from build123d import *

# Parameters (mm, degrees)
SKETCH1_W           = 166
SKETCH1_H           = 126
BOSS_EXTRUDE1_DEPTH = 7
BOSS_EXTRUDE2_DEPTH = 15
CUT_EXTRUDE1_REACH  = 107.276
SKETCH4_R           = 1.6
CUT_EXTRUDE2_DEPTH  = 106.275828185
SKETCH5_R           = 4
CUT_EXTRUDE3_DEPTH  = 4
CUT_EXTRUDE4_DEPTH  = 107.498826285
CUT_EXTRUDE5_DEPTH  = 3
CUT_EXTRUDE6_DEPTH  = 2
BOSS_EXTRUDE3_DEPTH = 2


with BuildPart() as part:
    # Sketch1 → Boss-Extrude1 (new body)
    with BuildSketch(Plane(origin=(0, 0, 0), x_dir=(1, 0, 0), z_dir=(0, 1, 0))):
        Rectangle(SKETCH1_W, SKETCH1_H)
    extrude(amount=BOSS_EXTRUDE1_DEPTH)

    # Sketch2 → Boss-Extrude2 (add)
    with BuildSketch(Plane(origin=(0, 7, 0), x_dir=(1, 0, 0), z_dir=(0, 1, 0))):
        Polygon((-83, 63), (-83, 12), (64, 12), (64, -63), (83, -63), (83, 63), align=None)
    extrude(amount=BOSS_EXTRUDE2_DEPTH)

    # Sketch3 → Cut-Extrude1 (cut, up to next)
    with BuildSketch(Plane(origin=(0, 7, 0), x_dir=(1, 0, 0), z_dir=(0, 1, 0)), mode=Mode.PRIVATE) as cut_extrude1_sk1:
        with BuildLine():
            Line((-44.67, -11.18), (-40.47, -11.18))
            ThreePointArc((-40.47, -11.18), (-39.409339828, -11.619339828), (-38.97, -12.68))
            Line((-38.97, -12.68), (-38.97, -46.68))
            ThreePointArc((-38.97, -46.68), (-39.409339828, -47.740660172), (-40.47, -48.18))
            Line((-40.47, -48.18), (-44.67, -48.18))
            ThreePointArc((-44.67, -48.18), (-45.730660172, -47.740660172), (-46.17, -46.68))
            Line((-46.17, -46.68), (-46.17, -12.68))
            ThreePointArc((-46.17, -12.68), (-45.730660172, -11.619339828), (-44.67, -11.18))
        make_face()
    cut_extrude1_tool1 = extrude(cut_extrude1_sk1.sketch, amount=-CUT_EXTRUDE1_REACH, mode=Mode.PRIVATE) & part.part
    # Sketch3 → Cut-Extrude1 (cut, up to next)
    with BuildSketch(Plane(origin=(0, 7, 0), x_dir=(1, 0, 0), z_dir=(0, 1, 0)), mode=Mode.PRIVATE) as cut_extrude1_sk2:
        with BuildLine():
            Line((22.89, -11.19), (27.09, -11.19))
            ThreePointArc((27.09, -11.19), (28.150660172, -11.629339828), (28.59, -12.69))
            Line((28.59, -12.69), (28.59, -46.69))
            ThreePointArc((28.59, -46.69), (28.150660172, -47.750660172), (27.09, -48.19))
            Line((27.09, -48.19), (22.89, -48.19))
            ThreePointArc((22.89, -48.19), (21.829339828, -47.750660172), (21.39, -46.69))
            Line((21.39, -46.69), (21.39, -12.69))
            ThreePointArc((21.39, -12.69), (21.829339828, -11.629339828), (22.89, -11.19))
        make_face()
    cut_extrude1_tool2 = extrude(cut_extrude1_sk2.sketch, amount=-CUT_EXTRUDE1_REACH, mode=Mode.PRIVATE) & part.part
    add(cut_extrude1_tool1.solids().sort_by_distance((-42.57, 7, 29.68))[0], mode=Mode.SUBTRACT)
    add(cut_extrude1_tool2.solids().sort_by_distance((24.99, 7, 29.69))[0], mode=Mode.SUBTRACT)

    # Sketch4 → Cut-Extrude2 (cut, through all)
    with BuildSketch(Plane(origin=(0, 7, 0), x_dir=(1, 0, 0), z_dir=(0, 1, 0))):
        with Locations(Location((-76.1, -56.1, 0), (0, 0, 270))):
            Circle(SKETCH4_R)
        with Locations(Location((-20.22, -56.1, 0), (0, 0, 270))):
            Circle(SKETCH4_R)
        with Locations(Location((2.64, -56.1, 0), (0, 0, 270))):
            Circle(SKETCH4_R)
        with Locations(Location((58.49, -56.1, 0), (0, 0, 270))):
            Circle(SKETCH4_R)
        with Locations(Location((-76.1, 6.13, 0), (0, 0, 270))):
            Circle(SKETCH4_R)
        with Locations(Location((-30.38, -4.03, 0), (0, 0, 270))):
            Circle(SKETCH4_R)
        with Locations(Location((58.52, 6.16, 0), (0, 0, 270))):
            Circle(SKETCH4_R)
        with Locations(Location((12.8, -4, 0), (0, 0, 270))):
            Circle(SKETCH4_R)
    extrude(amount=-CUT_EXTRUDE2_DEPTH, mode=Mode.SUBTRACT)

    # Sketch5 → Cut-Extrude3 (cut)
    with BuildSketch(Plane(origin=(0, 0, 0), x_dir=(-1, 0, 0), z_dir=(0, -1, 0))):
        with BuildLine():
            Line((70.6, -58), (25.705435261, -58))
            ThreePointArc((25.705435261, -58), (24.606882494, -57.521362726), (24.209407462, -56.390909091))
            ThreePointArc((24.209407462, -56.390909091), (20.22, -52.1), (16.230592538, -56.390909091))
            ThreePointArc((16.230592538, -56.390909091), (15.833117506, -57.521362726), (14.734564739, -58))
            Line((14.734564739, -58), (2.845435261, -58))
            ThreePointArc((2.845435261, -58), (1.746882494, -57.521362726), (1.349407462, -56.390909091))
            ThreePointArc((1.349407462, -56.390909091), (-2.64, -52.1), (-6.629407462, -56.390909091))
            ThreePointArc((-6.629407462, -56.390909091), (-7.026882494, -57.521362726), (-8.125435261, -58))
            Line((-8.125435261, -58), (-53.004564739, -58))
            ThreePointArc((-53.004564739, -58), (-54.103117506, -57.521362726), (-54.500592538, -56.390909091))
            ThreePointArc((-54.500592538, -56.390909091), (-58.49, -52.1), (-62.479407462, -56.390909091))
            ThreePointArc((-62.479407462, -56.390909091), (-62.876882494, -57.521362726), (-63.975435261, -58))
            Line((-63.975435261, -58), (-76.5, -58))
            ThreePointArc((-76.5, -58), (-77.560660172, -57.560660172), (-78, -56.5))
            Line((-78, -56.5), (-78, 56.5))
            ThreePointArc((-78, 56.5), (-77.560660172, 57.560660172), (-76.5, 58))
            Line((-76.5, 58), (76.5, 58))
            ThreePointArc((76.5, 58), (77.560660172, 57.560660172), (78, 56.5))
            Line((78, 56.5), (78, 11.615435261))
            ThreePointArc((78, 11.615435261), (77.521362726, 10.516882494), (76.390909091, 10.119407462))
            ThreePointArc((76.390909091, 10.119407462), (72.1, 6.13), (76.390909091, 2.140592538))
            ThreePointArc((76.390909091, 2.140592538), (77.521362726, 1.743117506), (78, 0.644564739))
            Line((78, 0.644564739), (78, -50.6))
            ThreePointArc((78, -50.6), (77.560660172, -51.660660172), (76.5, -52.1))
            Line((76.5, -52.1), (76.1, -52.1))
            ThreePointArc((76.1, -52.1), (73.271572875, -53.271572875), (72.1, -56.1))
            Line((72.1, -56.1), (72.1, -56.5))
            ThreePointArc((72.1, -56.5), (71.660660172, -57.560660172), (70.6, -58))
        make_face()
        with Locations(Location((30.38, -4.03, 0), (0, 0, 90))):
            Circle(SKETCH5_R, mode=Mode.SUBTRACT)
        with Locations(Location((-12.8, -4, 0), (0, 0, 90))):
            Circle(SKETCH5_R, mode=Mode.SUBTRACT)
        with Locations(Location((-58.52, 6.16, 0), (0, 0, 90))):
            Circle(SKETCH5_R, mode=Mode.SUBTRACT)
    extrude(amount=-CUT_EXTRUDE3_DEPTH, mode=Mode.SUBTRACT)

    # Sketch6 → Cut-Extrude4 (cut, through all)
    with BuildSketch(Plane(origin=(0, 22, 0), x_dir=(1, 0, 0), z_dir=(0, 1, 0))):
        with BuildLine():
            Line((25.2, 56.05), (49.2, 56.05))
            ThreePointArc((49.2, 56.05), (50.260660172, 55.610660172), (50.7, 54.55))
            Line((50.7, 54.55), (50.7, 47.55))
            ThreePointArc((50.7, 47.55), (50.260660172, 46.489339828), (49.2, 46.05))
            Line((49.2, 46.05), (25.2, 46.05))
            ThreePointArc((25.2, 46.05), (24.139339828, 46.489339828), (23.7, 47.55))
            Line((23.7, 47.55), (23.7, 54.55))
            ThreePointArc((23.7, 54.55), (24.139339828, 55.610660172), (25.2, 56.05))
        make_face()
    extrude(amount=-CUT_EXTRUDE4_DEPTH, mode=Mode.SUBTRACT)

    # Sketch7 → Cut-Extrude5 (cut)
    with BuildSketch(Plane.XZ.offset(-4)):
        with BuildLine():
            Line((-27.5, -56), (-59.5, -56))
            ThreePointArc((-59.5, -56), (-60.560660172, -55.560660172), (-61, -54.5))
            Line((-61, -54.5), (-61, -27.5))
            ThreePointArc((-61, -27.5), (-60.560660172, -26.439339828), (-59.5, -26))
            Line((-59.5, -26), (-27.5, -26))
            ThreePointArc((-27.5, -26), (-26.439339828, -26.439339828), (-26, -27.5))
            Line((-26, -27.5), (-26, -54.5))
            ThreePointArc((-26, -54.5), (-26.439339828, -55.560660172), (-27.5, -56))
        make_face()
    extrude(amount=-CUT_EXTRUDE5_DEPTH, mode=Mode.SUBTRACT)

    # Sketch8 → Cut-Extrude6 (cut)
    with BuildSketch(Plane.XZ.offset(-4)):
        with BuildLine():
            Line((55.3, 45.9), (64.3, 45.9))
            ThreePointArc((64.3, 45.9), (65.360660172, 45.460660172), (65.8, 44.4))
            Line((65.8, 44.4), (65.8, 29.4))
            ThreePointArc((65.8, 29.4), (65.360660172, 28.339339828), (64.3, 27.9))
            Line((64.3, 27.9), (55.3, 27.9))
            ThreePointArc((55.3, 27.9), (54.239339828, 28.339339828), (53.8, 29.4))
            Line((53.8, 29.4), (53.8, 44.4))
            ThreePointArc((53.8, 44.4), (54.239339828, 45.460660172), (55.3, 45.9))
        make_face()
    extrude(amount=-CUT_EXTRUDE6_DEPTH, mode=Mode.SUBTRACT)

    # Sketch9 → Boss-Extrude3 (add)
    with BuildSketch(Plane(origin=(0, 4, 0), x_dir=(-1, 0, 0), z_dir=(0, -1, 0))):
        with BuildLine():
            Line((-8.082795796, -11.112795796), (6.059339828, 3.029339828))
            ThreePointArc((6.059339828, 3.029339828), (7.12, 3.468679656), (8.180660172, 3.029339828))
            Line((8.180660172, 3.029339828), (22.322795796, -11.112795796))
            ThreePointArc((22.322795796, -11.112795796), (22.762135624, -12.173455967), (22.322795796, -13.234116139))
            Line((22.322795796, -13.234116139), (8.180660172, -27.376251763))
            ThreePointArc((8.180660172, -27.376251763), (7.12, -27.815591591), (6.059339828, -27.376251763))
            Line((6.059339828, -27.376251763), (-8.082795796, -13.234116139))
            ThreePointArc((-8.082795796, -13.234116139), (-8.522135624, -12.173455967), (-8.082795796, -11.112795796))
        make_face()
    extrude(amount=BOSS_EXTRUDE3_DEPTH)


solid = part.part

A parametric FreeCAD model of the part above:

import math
import FreeCAD as App
import Part
import Sketcher

V = App.Vector

doc = App.newDocument("Part")
body = doc.addObject("PartDesign::Body", "Body")

sketch1 = body.newObject("Sketcher::SketchObject", "Sketch")
sketch1.AttachmentSupport = (doc.getObject("XZ_Plane"), [""])
sketch1.MapMode = "FlatFace"
sketch1.addGeometry(Part.LineSegment(V(-83, -63, 0), V(-83, 63, 0)), False)
sketch1.addGeometry(Part.LineSegment(V(-83, 63, 0), V(83, 63, 0)), False)
sketch1.addGeometry(Part.LineSegment(V(83, 63, 0), V(83, -63, 0)), False)
sketch1.addGeometry(Part.LineSegment(V(83, -63, 0), V(-83, -63, 0)), False)
sketch1.addConstraint(Sketcher.Constraint("Coincident", 0, 2, 1, 1))
sketch1.addConstraint(Sketcher.Constraint("Coincident", 1, 2, 2, 1))
sketch1.addConstraint(Sketcher.Constraint("Coincident", 2, 2, 3, 1))
sketch1.addConstraint(Sketcher.Constraint("Coincident", 3, 2, 0, 1))
sketch1.addConstraint(Sketcher.Constraint("Vertical", 0))
sketch1.addConstraint(Sketcher.Constraint("Horizontal", 1))
sketch1.addConstraint(Sketcher.Constraint("Vertical", 2))
sketch1.addConstraint(Sketcher.Constraint("Horizontal", 3))
sketch1.addConstraint(Sketcher.Constraint("Symmetric", 0, 2, 2, 2, -1, 1))
sketch1.addConstraint(Sketcher.Constraint("DistanceX", 1, 1, 1, 2, 166.0))
sketch1.addConstraint(Sketcher.Constraint("DistanceY", 0, 1, 0, 2, 126.0))
pad1 = body.newObject("PartDesign::Pad", "Pad")
pad1.Profile = sketch1
pad1.Length = 7
pad1.Reversed = True

sketch2 = body.newObject("Sketcher::SketchObject", "Sketch001")
sketch2.AttachmentSupport = (doc.getObject("XZ_Plane"), [""])
sketch2.MapMode = "FlatFace"
sketch2.AttachmentOffset = App.Placement(V(0, 0, -7), App.Rotation())
sketch2.addGeometry(Part.LineSegment(V(-83, -63, 0), V(-83, -12, 0)), False)
sketch2.addGeometry(Part.LineSegment(V(-83, -12, 0), V(64, -12, 0)), False)
sketch2.addGeometry(Part.LineSegment(V(64, -12, 0), V(64, 63, 0)), False)
sketch2.addGeometry(Part.LineSegment(V(64, 63, 0), V(83, 63, 0)), False)
sketch2.addGeometry(Part.LineSegment(V(83, 63, 0), V(83, -63, 0)), False)
sketch2.addGeometry(Part.LineSegment(V(83, -63, 0), V(-83, -63, 0)), False)
sketch2.addConstraint(Sketcher.Constraint("Coincident", 0, 2, 1, 1))
sketch2.addConstraint(Sketcher.Constraint("Coincident", 1, 2, 2, 1))
sketch2.addConstraint(Sketcher.Constraint("Coincident", 2, 2, 3, 1))
sketch2.addConstraint(Sketcher.Constraint("Coincident", 3, 2, 4, 1))
sketch2.addConstraint(Sketcher.Constraint("Coincident", 4, 2, 5, 1))
sketch2.addConstraint(Sketcher.Constraint("Coincident", 5, 2, 0, 1))
sketch2.addConstraint(Sketcher.Constraint("Vertical", 0))
sketch2.addConstraint(Sketcher.Constraint("Horizontal", 1))
sketch2.addConstraint(Sketcher.Constraint("Vertical", 2))
sketch2.addConstraint(Sketcher.Constraint("Horizontal", 3))
sketch2.addConstraint(Sketcher.Constraint("Vertical", 4))
sketch2.addConstraint(Sketcher.Constraint("Horizontal", 5))
sketch2.addConstraint(Sketcher.Constraint("Symmetric", 3, 2, 5, 2, -1, 1))
sketch2.addConstraint(Sketcher.Constraint("DistanceX", 1, 1, 1, 2, 147.0))
sketch2.addConstraint(Sketcher.Constraint("DistanceX", 3, 1, 3, 2, 19.0))
sketch2.addConstraint(Sketcher.Constraint("DistanceY", 0, 1, 0, 2, 51.0))
sketch2.addConstraint(Sketcher.Constraint("DistanceY", 2, 1, 2, 2, 75.0))
pad2 = body.newObject("PartDesign::Pad", "Pad001")
pad2.Profile = sketch2
pad2.Length = 15
pad2.Reversed = True

sketch3 = body.newObject("Sketcher::SketchObject", "Sketch002")
sketch3.AttachmentSupport = (doc.getObject("XZ_Plane"), [""])
sketch3.MapMode = "FlatFace"
sketch3.AttachmentOffset = App.Placement(V(0, 0, -7), App.Rotation())
sketch3.addGeometry(Part.LineSegment(V(-40.5, 11.2, 0), V(-44.7, 11.2, 0)), False)
sketch3.addGeometry(Part.ArcOfCircle(Part.Circle(V(-44.7, 12.7, 0), V(0, 0, 1), 1.5), math.radians(180), math.radians(270)), False)
sketch3.addGeometry(Part.LineSegment(V(-46.2, 12.7, 0), V(-46.2, 46.7, 0)), False)
sketch3.addGeometry(Part.ArcOfCircle(Part.Circle(V(-44.7, 46.7, 0), V(0, 0, 1), 1.5), math.radians(90), math.radians(180)), False)
sketch3.addGeometry(Part.LineSegment(V(-44.7, 48.2, 0), V(-40.5, 48.2, 0)), False)
sketch3.addGeometry(Part.ArcOfCircle(Part.Circle(V(-40.5, 46.7, 0), V(0, 0, 1), 1.5), math.radians(0), math.radians(90)), False)
sketch3.addGeometry(Part.LineSegment(V(-39, 46.7, 0), V(-39, 12.7, 0)), False)
sketch3.addGeometry(Part.ArcOfCircle(Part.Circle(V(-40.5, 12.7, 0), V(0, 0, 1), 1.5), math.radians(-90), math.radians(0)), False)
sketch3.addConstraint(Sketcher.Constraint("Tangent", 0, 2, 1, 2))
sketch3.addConstraint(Sketcher.Constraint("Tangent", 1, 1, 2, 1))
sketch3.addConstraint(Sketcher.Constraint("Tangent", 2, 2, 3, 2))
sketch3.addConstraint(Sketcher.Constraint("Tangent", 3, 1, 4, 1))
sketch3.addConstraint(Sketcher.Constraint("Tangent", 4, 2, 5, 2))
sketch3.addConstraint(Sketcher.Constraint("Tangent", 5, 1, 6, 1))
sketch3.addConstraint(Sketcher.Constraint("Tangent", 6, 2, 7, 2))
sketch3.addConstraint(Sketcher.Constraint("Tangent", 7, 1, 0, 1))
sketch3.addConstraint(Sketcher.Constraint("Horizontal", 0))
sketch3.addConstraint(Sketcher.Constraint("Vertical", 2))
sketch3.addConstraint(Sketcher.Constraint("Horizontal", 4))
sketch3.addConstraint(Sketcher.Constraint("Vertical", 6))
sketch3.addConstraint(Sketcher.Constraint("Equal", 1, 3))
sketch3.addConstraint(Sketcher.Constraint("Equal", 3, 5))
sketch3.addConstraint(Sketcher.Constraint("Equal", 5, 7))
sketch3.addConstraint(Sketcher.Constraint("Radius", 1, 1.5))
sketch3.addConstraint(Sketcher.Constraint("DistanceY", 2, 1, 2, 2, 34.0))
sketch3.addConstraint(Sketcher.Constraint("DistanceX", 0, 2, 0, 1, 4.2))
sketch3.addConstraint(Sketcher.Constraint("DistanceX", 1, 3, -1, 1, 44.67))
sketch3.addConstraint(Sketcher.Constraint("DistanceY", -1, 1, 1, 3, 12.68))
pocket1 = body.newObject("PartDesign::Pocket", "Pocket")
pocket1.Profile = sketch3
pocket1.Type = "UpToFirst"
pocket1.Reversed = True

sketch4 = body.newObject("Sketcher::SketchObject", "Sketch003")
sketch4.AttachmentSupport = (doc.getObject("XZ_Plane"), [""])
sketch4.MapMode = "FlatFace"
sketch4.AttachmentOffset = App.Placement(V(0, 0, -7), App.Rotation())
sketch4.addGeometry(Part.LineSegment(V(27.1, 11.2, 0), V(22.9, 11.2, 0)), False)
sketch4.addGeometry(Part.ArcOfCircle(Part.Circle(V(22.9, 12.7, 0), V(0, 0, 1), 1.5), math.radians(180), math.radians(270)), False)
sketch4.addGeometry(Part.LineSegment(V(21.4, 12.7, 0), V(21.4, 46.7, 0)), False)
sketch4.addGeometry(Part.ArcOfCircle(Part.Circle(V(22.9, 46.7, 0), V(0, 0, 1), 1.5), math.radians(90), math.radians(180)), False)
sketch4.addGeometry(Part.LineSegment(V(22.9, 48.2, 0), V(27.1, 48.2, 0)), False)
sketch4.addGeometry(Part.ArcOfCircle(Part.Circle(V(27.1, 46.7, 0), V(0, 0, 1), 1.5), math.radians(0), math.radians(90)), False)
sketch4.addGeometry(Part.LineSegment(V(28.6, 46.7, 0), V(28.6, 12.7, 0)), False)
sketch4.addGeometry(Part.ArcOfCircle(Part.Circle(V(27.1, 12.7, 0), V(0, 0, 1), 1.5), math.radians(-90), math.radians(0)), False)
sketch4.addConstraint(Sketcher.Constraint("Tangent", 0, 2, 1, 2))
sketch4.addConstraint(Sketcher.Constraint("Tangent", 1, 1, 2, 1))
sketch4.addConstraint(Sketcher.Constraint("Tangent", 2, 2, 3, 2))
sketch4.addConstraint(Sketcher.Constraint("Tangent", 3, 1, 4, 1))
sketch4.addConstraint(Sketcher.Constraint("Tangent", 4, 2, 5, 2))
sketch4.addConstraint(Sketcher.Constraint("Tangent", 5, 1, 6, 1))
sketch4.addConstraint(Sketcher.Constraint("Tangent", 6, 2, 7, 2))
sketch4.addConstraint(Sketcher.Constraint("Tangent", 7, 1, 0, 1))
sketch4.addConstraint(Sketcher.Constraint("Horizontal", 0))
sketch4.addConstraint(Sketcher.Constraint("Vertical", 2))
sketch4.addConstraint(Sketcher.Constraint("Horizontal", 4))
sketch4.addConstraint(Sketcher.Constraint("Vertical", 6))
sketch4.addConstraint(Sketcher.Constraint("Equal", 1, 3))
sketch4.addConstraint(Sketcher.Constraint("Equal", 3, 5))
sketch4.addConstraint(Sketcher.Constraint("Equal", 5, 7))
sketch4.addConstraint(Sketcher.Constraint("Radius", 1, 1.5))
sketch4.addConstraint(Sketcher.Constraint("DistanceY", 2, 1, 2, 2, 34.0))
sketch4.addConstraint(Sketcher.Constraint("DistanceX", 0, 2, 0, 1, 4.2))
sketch4.addConstraint(Sketcher.Constraint("DistanceX", -1, 1, 1, 3, 22.89))
sketch4.addConstraint(Sketcher.Constraint("DistanceY", -1, 1, 1, 3, 12.69))
pocket2 = body.newObject("PartDesign::Pocket", "Pocket001")
pocket2.Profile = sketch4
pocket2.Type = "UpToFirst"
pocket2.Reversed = True

sketch5 = body.newObject("Sketcher::SketchObject", "Sketch004")
sketch5.AttachmentSupport = (doc.getObject("XZ_Plane"), [""])
sketch5.MapMode = "FlatFace"
sketch5.AttachmentOffset = App.Placement(V(0, 0, -7), App.Rotation())
sketch5.addGeometry(Part.Circle(V(-76.1, 56.1, 0), V(0, 0, 1), 1.6), False)
sketch5.addGeometry(Part.Circle(V(-20.2, 56.1, 0), V(0, 0, 1), 1.6), False)
sketch5.addGeometry(Part.Circle(V(2.6, 56.1, 0), V(0, 0, 1), 1.6), False)
sketch5.addGeometry(Part.Circle(V(58.5, 56.1, 0), V(0, 0, 1), 1.6), False)
sketch5.addGeometry(Part.Circle(V(-76.1, -6.1, 0), V(0, 0, 1), 1.6), False)
sketch5.addGeometry(Part.Circle(V(-30.4, 4, 0), V(0, 0, 1), 1.6), False)
sketch5.addGeometry(Part.Circle(V(58.5, -6.2, 0), V(0, 0, 1), 1.6), False)
sketch5.addGeometry(Part.Circle(V(12.8, 4, 0), V(0, 0, 1), 1.6), False)
sketch5.addConstraint(Sketcher.Constraint("Equal", 0, 1))
sketch5.addConstraint(Sketcher.Constraint("Equal", 1, 2))
sketch5.addConstraint(Sketcher.Constraint("Equal", 2, 3))
sketch5.addConstraint(Sketcher.Constraint("Equal", 3, 4))
sketch5.addConstraint(Sketcher.Constraint("Equal", 4, 5))
sketch5.addConstraint(Sketcher.Constraint("Equal", 5, 6))
sketch5.addConstraint(Sketcher.Constraint("Equal", 6, 7))
sketch5.addConstraint(Sketcher.Constraint("Horizontal", 0, 3, 1, 3))
sketch5.addConstraint(Sketcher.Constraint("Horizontal", 1, 3, 2, 3))
sketch5.addConstraint(Sketcher.Constraint("Horizontal", 2, 3, 3, 3))
sketch5.addConstraint(Sketcher.Constraint("Vertical", 0, 3, 4, 3))
sketch5.addConstraint(Sketcher.Constraint("Diameter", 0, 3.2))
sketch5.addConstraint(Sketcher.Constraint("DistanceY", -1, 1, 7, 3, 4.0))
sketch5.addConstraint(Sketcher.Constraint("DistanceX", 0, 3, -1, 1, 76.1))
sketch5.addConstraint(Sketcher.Constraint("DistanceY", -1, 1, 0, 3, 56.1))
sketch5.addConstraint(Sketcher.Constraint("DistanceX", -1, 1, 7, 3, 12.8))
sketch5.addConstraint(Sketcher.Constraint("DistanceX", 5, 3, 6, 3, 88.9))
sketch5.addConstraint(Sketcher.Constraint("DistanceX", 1, 3, -1, 1, 20.22))
sketch5.addConstraint(Sketcher.Constraint("DistanceX", -1, 1, 2, 3, 2.64))
sketch5.addConstraint(Sketcher.Constraint("DistanceX", -1, 1, 3, 3, 58.49))
sketch5.addConstraint(Sketcher.Constraint("DistanceY", 4, 3, -1, 1, 6.13))
sketch5.addConstraint(Sketcher.Constraint("DistanceX", 5, 3, -1, 1, 30.38))
sketch5.addConstraint(Sketcher.Constraint("DistanceY", -1, 1, 5, 3, 4.03))
sketch5.addConstraint(Sketcher.Constraint("DistanceY", 6, 3, -1, 1, 6.16))
pocket3 = body.newObject("PartDesign::Pocket", "Pocket002")
pocket3.Profile = sketch5
pocket3.Type = "ThroughAll"
pocket3.Reversed = True

sketch6 = body.newObject("Sketcher::SketchObject", "Sketch005")
sketch6.AttachmentSupport = (doc.getObject("XZ_Plane"), [""])
sketch6.MapMode = "FlatFace"
sketch6.addGeometry(Part.LineSegment(V(-25.71, 58, 0), V(-70.6, 58, 0)), False)
sketch6.addGeometry(Part.ArcOfCircle(Part.Circle(V(-70.6, 56.5, 0), V(0, 0, 1), 1.5), math.radians(90), math.radians(180)), False)
sketch6.addGeometry(Part.LineSegment(V(-72.1, 56.5, 0), V(-72.1, 56.1, 0)), False)
sketch6.addGeometry(Part.ArcOfCircle(Part.Circle(V(-76.1, 56.1, 0), V(0, 0, 1), 4), math.radians(-90), math.radians(0)), False)
sketch6.addGeometry(Part.LineSegment(V(-76.1, 52.1, 0), V(-76.5, 52.1, 0)), False)
sketch6.addGeometry(Part.ArcOfCircle(Part.Circle(V(-76.5, 50.6, 0), V(0, 0, 1), 1.5), math.radians(90), math.radians(180)), False)
sketch6.addGeometry(Part.LineSegment(V(-78, 50.6, 0), V(-78, -0.64, 0)), False)
sketch6.addGeometry(Part.ArcOfCircle(Part.Circle(V(-76.5, -0.64, 0), V(0, 0, 1), 1.5), math.radians(180), math.radians(274)), False)
sketch6.addGeometry(Part.ArcOfCircle(Part.Circle(V(-76.1, -6.13, 0), V(0, 0, 1), 4), math.radians(-94), math.radians(94)), False)
sketch6.addGeometry(Part.ArcOfCircle(Part.Circle(V(-76.5, -11.62, 0), V(0, 0, 1), 1.5), math.radians(86), math.radians(180)), False)
sketch6.addGeometry(Part.LineSegment(V(-78, -11.62, 0), V(-78, -56.5, 0)), False)
sketch6.addGeometry(Part.ArcOfCircle(Part.Circle(V(-76.5, -56.5, 0), V(0, 0, 1), 1.5), math.radians(180), math.radians(270)), False)
sketch6.addGeometry(Part.LineSegment(V(-76.5, -58, 0), V(76.5, -58, 0)), False)
sketch6.addGeometry(Part.ArcOfCircle(Part.Circle(V(76.5, -56.5, 0), V(0, 0, 1), 1.5), math.radians(-90), math.radians(0)), False)
sketch6.addGeometry(Part.LineSegment(V(78, -56.5, 0), V(78, 56.5, 0)), False)
sketch6.addGeometry(Part.ArcOfCircle(Part.Circle(V(76.5, 56.5, 0), V(0, 0, 1), 1.5), math.radians(0), math.radians(90)), False)
sketch6.addGeometry(Part.LineSegment(V(76.5, 58, 0), V(63.98, 58, 0)), False)
sketch6.addGeometry(Part.ArcOfCircle(Part.Circle(V(63.98, 56.5, 0), V(0, 0, 1), 1.5), math.radians(90), math.radians(184)), False)
sketch6.addGeometry(Part.ArcOfCircle(Part.Circle(V(58.49, 56.1, 0), V(0, 0, 1), 4), math.radians(176), math.radians(364)), False)
sketch6.addGeometry(Part.ArcOfCircle(Part.Circle(V(53, 56.5, 0), V(0, 0, 1), 1.5), math.radians(-4), math.radians(90)), False)
sketch6.addGeometry(Part.LineSegment(V(53, 58, 0), V(8.13, 58, 0)), False)
sketch6.addGeometry(Part.ArcOfCircle(Part.Circle(V(8.13, 56.5, 0), V(0, 0, 1), 1.5), math.radians(90), math.radians(184)), False)
sketch6.addGeometry(Part.ArcOfCircle(Part.Circle(V(2.64, 56.1, 0), V(0, 0, 1), 4), math.radians(176), math.radians(364)), False)
sketch6.addGeometry(Part.ArcOfCircle(Part.Circle(V(-2.85, 56.5, 0), V(0, 0, 1), 1.5), math.radians(-4), math.radians(90)), False)
sketch6.addGeometry(Part.LineSegment(V(-2.85, 58, 0), V(-14.73, 58, 0)), False)
sketch6.addGeometry(Part.ArcOfCircle(Part.Circle(V(-14.73, 56.5, 0), V(0, 0, 1), 1.5), math.radians(90), math.radians(184)), False)
sketch6.addGeometry(Part.ArcOfCircle(Part.Circle(V(-20.22, 56.1, 0), V(0, 0, 1), 4), math.radians(176), math.radians(364)), False)
sketch6.addGeometry(Part.ArcOfCircle(Part.Circle(V(-25.71, 56.5, 0), V(0, 0, 1), 1.5), math.radians(-4), math.radians(90)), False)
sketch6.addGeometry(Part.Circle(V(-30.38, 4.03, 0), V(0, 0, 1), 4), False)
sketch6.addGeometry(Part.Circle(V(12.8, 4, 0), V(0, 0, 1), 4), False)
sketch6.addGeometry(Part.Circle(V(58.52, -6.16, 0), V(0, 0, 1), 4), False)
sketch6.addConstraint(Sketcher.Constraint("Tangent", 0, 2, 1, 1))
sketch6.addConstraint(Sketcher.Constraint("Tangent", 1, 2, 2, 1))
sketch6.addConstraint(Sketcher.Constraint("Tangent", 2, 2, 3, 2))
sketch6.addConstraint(Sketcher.Constraint("Tangent", 3, 1, 4, 1))
sketch6.addConstraint(Sketcher.Constraint("Tangent", 4, 2, 5, 1))
sketch6.addConstraint(Sketcher.Constraint("Tangent", 5, 2, 6, 1))
sketch6.addConstraint(Sketcher.Constraint("Tangent", 6, 2, 7, 1))
sketch6.addConstraint(Sketcher.Constraint("Tangent", 7, 2, 8, 2))
sketch6.addConstraint(Sketcher.Constraint("Tangent", 8, 1, 9, 1))
sketch6.addConstraint(Sketcher.Constraint("Tangent", 9, 2, 10, 1))
sketch6.addConstraint(Sketcher.Constraint("Tangent", 10, 2, 11, 1))
sketch6.addConstraint(Sketcher.Constraint("Tangent", 11, 2, 12, 1))
sketch6.addConstraint(Sketcher.Constraint("Tangent", 12, 2, 13, 1))
sketch6.addConstraint(Sketcher.Constraint("Tangent", 13, 2, 14, 1))
sketch6.addConstraint(Sketcher.Constraint("Tangent", 14, 2, 15, 1))
sketch6.addConstraint(Sketcher.Constraint("Tangent", 15, 2, 16, 1))
sketch6.addConstraint(Sketcher.Constraint("Tangent", 16, 2, 17, 1))
sketch6.addConstraint(Sketcher.Constraint("Tangent", 17, 2, 18, 2))
sketch6.addConstraint(Sketcher.Constraint("Tangent", 18, 1, 19, 1))
sketch6.addConstraint(Sketcher.Constraint("Tangent", 19, 2, 20, 1))
sketch6.addConstraint(Sketcher.Constraint("Tangent", 20, 2, 21, 1))
sketch6.addConstraint(Sketcher.Constraint("Tangent", 21, 2, 22, 2))
sketch6.addConstraint(Sketcher.Constraint("Tangent", 22, 1, 23, 1))
sketch6.addConstraint(Sketcher.Constraint("Tangent", 23, 2, 24, 1))
sketch6.addConstraint(Sketcher.Constraint("Tangent", 24, 2, 25, 1))
sketch6.addConstraint(Sketcher.Constraint("Tangent", 25, 2, 26, 2))
sketch6.addConstraint(Sketcher.Constraint("Tangent", 26, 1, 27, 1))
sketch6.addConstraint(Sketcher.Constraint("Tangent", 27, 2, 0, 1))
sketch6.addConstraint(Sketcher.Constraint("Horizontal", 0))
sketch6.addConstraint(Sketcher.Constraint("Vertical", 2))
sketch6.addConstraint(Sketcher.Constraint("Horizontal", 4))
sketch6.addConstraint(Sketcher.Constraint("Vertical", 6))
sketch6.addConstraint(Sketcher.Constraint("Vertical", 10))
sketch6.addConstraint(Sketcher.Constraint("Horizontal", 12))
sketch6.addConstraint(Sketcher.Constraint("Vertical", 14))
sketch6.addConstraint(Sketcher.Constraint("Horizontal", 16))
sketch6.addConstraint(Sketcher.Constraint("Horizontal", 20))
sketch6.addConstraint(Sketcher.Constraint("Horizontal", 24))
sketch6.addConstraint(Sketcher.Constraint("Equal", 1, 5))
sketch6.addConstraint(Sketcher.Constraint("Equal", 5, 7))
sketch6.addConstraint(Sketcher.Constraint("Equal", 3, 8))
sketch6.addConstraint(Sketcher.Constraint("Equal", 7, 9))
sketch6.addConstraint(Sketcher.Constraint("Equal", 9, 11))
sketch6.addConstraint(Sketcher.Constraint("Equal", 11, 13))
sketch6.addConstraint(Sketcher.Constraint("Equal", 13, 15))
sketch6.addConstraint(Sketcher.Constraint("Equal", 15, 17))
sketch6.addConstraint(Sketcher.Constraint("Equal", 8, 18))
sketch6.addConstraint(Sketcher.Constraint("Equal", 17, 19))
sketch6.addConstraint(Sketcher.Constraint("Equal", 19, 21))
sketch6.addConstraint(Sketcher.Constraint("Equal", 18, 22))
sketch6.addConstraint(Sketcher.Constraint("Equal", 21, 23))
sketch6.addConstraint(Sketcher.Constraint("Equal", 23, 25))
sketch6.addConstraint(Sketcher.Constraint("Equal", 22, 26))
sketch6.addConstraint(Sketcher.Constraint("Equal", 25, 27))
sketch6.addConstraint(Sketcher.Constraint("Equal", 26, 28))
sketch6.addConstraint(Sketcher.Constraint("Equal", 28, 29))
sketch6.addConstraint(Sketcher.Constraint("Equal", 29, 30))
sketch6.addConstraint(Sketcher.Constraint("Symmetric", 11, 3, 15, 3, -1, 1))
sketch6.addConstraint(Sketcher.Constraint("Horizontal", 1, 3, 15, 3))
sketch6.addConstraint(Sketcher.Constraint("Horizontal", 3, 3, 18, 3))
sketch6.addConstraint(Sketcher.Constraint("Horizontal", 17, 3, 19, 3))
sketch6.addConstraint(Sketcher.Constraint("Horizontal", 18, 3, 22, 3))
sketch6.addConstraint(Sketcher.Constraint("Horizontal", 21, 3, 23, 3))
sketch6.addConstraint(Sketcher.Constraint("Horizontal", 22, 3, 26, 3))
sketch6.addConstraint(Sketcher.Constraint("Vertical", 3, 3, 8, 3))
sketch6.addConstraint(Sketcher.Constraint("Vertical", 7, 3, 9, 3))
sketch6.addConstraint(Sketcher.Constraint("Equal", 4, 2))
sketch6.addConstraint(Sketcher.Constraint("Diameter", 28, 8.0))
sketch6.addConstraint(Sketcher.Constraint("Radius", 1, 1.5))
sketch6.addConstraint(Sketcher.Constraint("DistanceX", 12, 1, 12, 2, 153.0))
sketch6.addConstraint(Sketcher.Constraint("DistanceY", 14, 1, 14, 2, 113.0))
sketch6.addConstraint(Sketcher.Constraint("DistanceX", 4, 2, 4, 1, 0.4))
sketch6.addConstraint(Sketcher.Constraint("DistanceY", -1, 1, 29, 3, 4.0))
sketch6.addConstraint(Sketcher.Constraint("DistanceX", -1, 1, 29, 3, 12.8))
sketch6.addConstraint(Sketcher.Constraint("DistanceY", 8, 3, -1, 1, 6.13))
sketch6.addConstraint(Sketcher.Constraint("DistanceX", -1, 1, 18, 3, 58.49))
sketch6.addConstraint(Sketcher.Constraint("DistanceX", -1, 1, 22, 3, 2.64))
sketch6.addConstraint(Sketcher.Constraint("DistanceX", 26, 3, -1, 1, 20.22))
sketch6.addConstraint(Sketcher.Constraint("DistanceX", 28, 3, -1, 1, 30.38))
sketch6.addConstraint(Sketcher.Constraint("DistanceY", -1, 1, 28, 3, 4.03))
sketch6.addConstraint(Sketcher.Constraint("DistanceX", -1, 1, 30, 3, 58.52))
sketch6.addConstraint(Sketcher.Constraint("DistanceY", 30, 3, -1, 1, 6.16))
pocket4 = body.newObject("PartDesign::Pocket", "Pocket003")
pocket4.Profile = sketch6
pocket4.Length = 4

sketch7 = body.newObject("Sketcher::SketchObject", "Sketch006")
sketch7.AttachmentSupport = (doc.getObject("XZ_Plane"), [""])
sketch7.MapMode = "FlatFace"
sketch7.AttachmentOffset = App.Placement(V(0, 0, -22), App.Rotation())
sketch7.addGeometry(Part.LineSegment(V(49.2, -56, 0), V(25.2, -56, 0)), False)
sketch7.addGeometry(Part.ArcOfCircle(Part.Circle(V(25.2, -54.6, 0), V(0, 0, 1), 1.5), math.radians(180), math.radians(270)), False)
sketch7.addGeometry(Part.LineSegment(V(23.7, -54.5, 0), V(23.7, -47.5, 0)), False)
sketch7.addGeometry(Part.ArcOfCircle(Part.Circle(V(25.2, -47.5, 0), V(0, 0, 1), 1.5), math.radians(90), math.radians(180)), False)
sketch7.addGeometry(Part.LineSegment(V(25.2, -46, 0), V(49.2, -46, 0)), False)
sketch7.addGeometry(Part.ArcOfCircle(Part.Circle(V(49.2, -47.5, 0), V(0, 0, 1), 1.5), math.radians(0), math.radians(90)), False)
sketch7.addGeometry(Part.LineSegment(V(50.7, -47.5, 0), V(50.7, -54.5, 0)), False)
sketch7.addGeometry(Part.ArcOfCircle(Part.Circle(V(49.2, -54.6, 0), V(0, 0, 1), 1.5), math.radians(-90), math.radians(0)), False)
sketch7.addConstraint(Sketcher.Constraint("Tangent", 0, 2, 1, 2))
sketch7.addConstraint(Sketcher.Constraint("Tangent", 1, 1, 2, 1))
sketch7.addConstraint(Sketcher.Constraint("Tangent", 2, 2, 3, 2))
sketch7.addConstraint(Sketcher.Constraint("Tangent", 3, 1, 4, 1))
sketch7.addConstraint(Sketcher.Constraint("Tangent", 4, 2, 5, 2))
sketch7.addConstraint(Sketcher.Constraint("Tangent", 5, 1, 6, 1))
sketch7.addConstraint(Sketcher.Constraint("Tangent", 6, 2, 7, 2))
sketch7.addConstraint(Sketcher.Constraint("Tangent", 7, 1, 0, 1))
sketch7.addConstraint(Sketcher.Constraint("Horizontal", 0))
sketch7.addConstraint(Sketcher.Constraint("Vertical", 2))
sketch7.addConstraint(Sketcher.Constraint("Horizontal", 4))
sketch7.addConstraint(Sketcher.Constraint("Vertical", 6))
sketch7.addConstraint(Sketcher.Constraint("Equal", 1, 3))
sketch7.addConstraint(Sketcher.Constraint("Equal", 3, 5))
sketch7.addConstraint(Sketcher.Constraint("Equal", 5, 7))
sketch7.addConstraint(Sketcher.Constraint("Radius", 1, 1.5))
sketch7.addConstraint(Sketcher.Constraint("DistanceX", 0, 2, 0, 1, 24.0))
sketch7.addConstraint(Sketcher.Constraint("DistanceY", 2, 1, 2, 2, 7.0))
sketch7.addConstraint(Sketcher.Constraint("DistanceX", -1, 1, 1, 3, 25.2))
sketch7.addConstraint(Sketcher.Constraint("DistanceY", 1, 3, -1, 1, 54.55))
pocket5 = body.newObject("PartDesign::Pocket", "Pocket004")
pocket5.Profile = sketch7
pocket5.Type = "ThroughAll"
pocket5.Reversed = True

sketch8 = body.newObject("Sketcher::SketchObject", "Sketch007")
sketch8.AttachmentSupport = (doc.getObject("XZ_Plane"), [""])
sketch8.MapMode = "FlatFace"
sketch8.AttachmentOffset = App.Placement(V(0, 0, -4), App.Rotation())
sketch8.addGeometry(Part.LineSegment(V(-59.5, -56, 0), V(-27.5, -56, 0)), False)
sketch8.addGeometry(Part.ArcOfCircle(Part.Circle(V(-27.5, -54.5, 0), V(0, 0, 1), 1.5), math.radians(-90), math.radians(0)), False)
sketch8.addGeometry(Part.LineSegment(V(-26, -54.5, 0), V(-26, -27.5, 0)), False)
sketch8.addGeometry(Part.ArcOfCircle(Part.Circle(V(-27.5, -27.5, 0), V(0, 0, 1), 1.5), math.radians(0), math.radians(90)), False)
sketch8.addGeometry(Part.LineSegment(V(-27.5, -26, 0), V(-59.5, -26, 0)), False)
sketch8.addGeometry(Part.ArcOfCircle(Part.Circle(V(-59.5, -27.5, 0), V(0, 0, 1), 1.5), math.radians(90), math.radians(180)), False)
sketch8.addGeometry(Part.LineSegment(V(-61, -27.5, 0), V(-61, -54.5, 0)), False)
sketch8.addGeometry(Part.ArcOfCircle(Part.Circle(V(-59.5, -54.5, 0), V(0, 0, 1), 1.5), math.radians(180), math.radians(270)), False)
sketch8.addConstraint(Sketcher.Constraint("Tangent", 0, 2, 1, 1))
sketch8.addConstraint(Sketcher.Constraint("Tangent", 1, 2, 2, 1))
sketch8.addConstraint(Sketcher.Constraint("Tangent", 2, 2, 3, 1))
sketch8.addConstraint(Sketcher.Constraint("Tangent", 3, 2, 4, 1))
sketch8.addConstraint(Sketcher.Constraint("Tangent", 4, 2, 5, 1))
sketch8.addConstraint(Sketcher.Constraint("Tangent", 5, 2, 6, 1))
sketch8.addConstraint(Sketcher.Constraint("Tangent", 6, 2, 7, 1))
sketch8.addConstraint(Sketcher.Constraint("Tangent", 7, 2, 0, 1))
sketch8.addConstraint(Sketcher.Constraint("Horizontal", 0))
sketch8.addConstraint(Sketcher.Constraint("Vertical", 2))
sketch8.addConstraint(Sketcher.Constraint("Horizontal", 4))
sketch8.addConstraint(Sketcher.Constraint("Vertical", 6))
sketch8.addConstraint(Sketcher.Constraint("Equal", 1, 3))
sketch8.addConstraint(Sketcher.Constraint("Equal", 3, 5))
sketch8.addConstraint(Sketcher.Constraint("Equal", 5, 7))
sketch8.addConstraint(Sketcher.Constraint("Radius", 1, 1.5))
sketch8.addConstraint(Sketcher.Constraint("DistanceX", 0, 1, 0, 2, 32.0))
sketch8.addConstraint(Sketcher.Constraint("DistanceY", 2, 1, 2, 2, 27.0))
sketch8.addConstraint(Sketcher.Constraint("DistanceY", 0, 2, -1, 1, 56.0))
sketch8.addConstraint(Sketcher.Constraint("DistanceX", 1, 2, -1, 1, 26.0))
pocket6 = body.newObject("PartDesign::Pocket", "Pocket005")
pocket6.Profile = sketch8
pocket6.Length = 3

sketch9 = body.newObject("Sketcher::SketchObject", "Sketch008")
sketch9.AttachmentSupport = (doc.getObject("XZ_Plane"), [""])
sketch9.MapMode = "FlatFace"
sketch9.AttachmentOffset = App.Placement(V(0, 0, -4), App.Rotation())
sketch9.addGeometry(Part.LineSegment(V(64.3, 45.9, 0), V(55.3, 45.9, 0)), False)
sketch9.addGeometry(Part.ArcOfCircle(Part.Circle(V(55.3, 44.4, 0), V(0, 0, 1), 1.5), math.radians(90), math.radians(180)), False)
sketch9.addGeometry(Part.LineSegment(V(53.8, 44.4, 0), V(53.8, 29.4, 0)), False)
sketch9.addGeometry(Part.ArcOfCircle(Part.Circle(V(55.3, 29.4, 0), V(0, 0, 1), 1.5), math.radians(180), math.radians(270)), False)
sketch9.addGeometry(Part.LineSegment(V(55.3, 27.9, 0), V(64.3, 27.9, 0)), False)
sketch9.addGeometry(Part.ArcOfCircle(Part.Circle(V(64.3, 29.4, 0), V(0, 0, 1), 1.5), math.radians(-90), math.radians(0)), False)
sketch9.addGeometry(Part.LineSegment(V(65.8, 29.4, 0), V(65.8, 44.4, 0)), False)
sketch9.addGeometry(Part.ArcOfCircle(Part.Circle(V(64.3, 44.4, 0), V(0, 0, 1), 1.5), math.radians(0), math.radians(90)), False)
sketch9.addConstraint(Sketcher.Constraint("Tangent", 0, 2, 1, 1))
sketch9.addConstraint(Sketcher.Constraint("Tangent", 1, 2, 2, 1))
sketch9.addConstraint(Sketcher.Constraint("Tangent", 2, 2, 3, 1))
sketch9.addConstraint(Sketcher.Constraint("Tangent", 3, 2, 4, 1))
sketch9.addConstraint(Sketcher.Constraint("Tangent", 4, 2, 5, 1))
sketch9.addConstraint(Sketcher.Constraint("Tangent", 5, 2, 6, 1))
sketch9.addConstraint(Sketcher.Constraint("Tangent", 6, 2, 7, 1))
sketch9.addConstraint(Sketcher.Constraint("Tangent", 7, 2, 0, 1))
sketch9.addConstraint(Sketcher.Constraint("Horizontal", 0))
sketch9.addConstraint(Sketcher.Constraint("Vertical", 2))
sketch9.addConstraint(Sketcher.Constraint("Horizontal", 4))
sketch9.addConstraint(Sketcher.Constraint("Vertical", 6))
sketch9.addConstraint(Sketcher.Constraint("Equal", 1, 3))
sketch9.addConstraint(Sketcher.Constraint("Equal", 3, 5))
sketch9.addConstraint(Sketcher.Constraint("Equal", 5, 7))
sketch9.addConstraint(Sketcher.Constraint("Radius", 1, 1.5))
sketch9.addConstraint(Sketcher.Constraint("DistanceX", 0, 2, 0, 1, 9.0))
sketch9.addConstraint(Sketcher.Constraint("DistanceY", 2, 2, 2, 1, 15.0))
sketch9.addConstraint(Sketcher.Constraint("DistanceX", -1, 1, 1, 3, 55.3))
sketch9.addConstraint(Sketcher.Constraint("DistanceY", -1, 1, 1, 3, 44.4))
pocket7 = body.newObject("PartDesign::Pocket", "Pocket006")
pocket7.Profile = sketch9
pocket7.Length = 2

sketch10 = body.newObject("Sketcher::SketchObject", "Sketch009")
sketch10.AttachmentSupport = (doc.getObject("XZ_Plane"), [""])
sketch10.MapMode = "FlatFace"
sketch10.AttachmentOffset = App.Placement(V(0, 0, -4), App.Rotation())
sketch10.addGeometry(Part.LineSegment(V(-6.1, -3, 0), V(8.1, 11.1, 0)), False)
sketch10.addGeometry(Part.ArcOfCircle(Part.Circle(V(7, 12.2, 0), V(0, 0, 1), 1.5), math.radians(-45), math.radians(45)), False)
sketch10.addGeometry(Part.LineSegment(V(8.1, 13.2, 0), V(-6.1, 27.4, 0)), False)
sketch10.addGeometry(Part.ArcOfCircle(Part.Circle(V(-7.1, 26.3, 0), V(0, 0, 1), 1.5), math.radians(45), math.radians(135)), False)
sketch10.addGeometry(Part.LineSegment(V(-8.2, 27.4, 0), V(-22.3, 13.2, 0)), False)
sketch10.addGeometry(Part.ArcOfCircle(Part.Circle(V(-21.3, 12.2, 0), V(0, 0, 1), 1.5), math.radians(135), math.radians(225)), False)
sketch10.addGeometry(Part.LineSegment(V(-22.3, 11.1, 0), V(-8.2, -3, 0)), False)
sketch10.addGeometry(Part.ArcOfCircle(Part.Circle(V(-7.1, -2, 0), V(0, 0, 1), 1.5), math.radians(-135), math.radians(-45)), False)
sketch10.addConstraint(Sketcher.Constraint("Tangent", 0, 2, 1, 1))
sketch10.addConstraint(Sketcher.Constraint("Tangent", 1, 2, 2, 1))
sketch10.addConstraint(Sketcher.Constraint("Tangent", 2, 2, 3, 1))
sketch10.addConstraint(Sketcher.Constraint("Tangent", 3, 2, 4, 1))
sketch10.addConstraint(Sketcher.Constraint("Tangent", 4, 2, 5, 1))
sketch10.addConstraint(Sketcher.Constraint("Tangent", 5, 2, 6, 1))
sketch10.addConstraint(Sketcher.Constraint("Tangent", 6, 2, 7, 1))
sketch10.addConstraint(Sketcher.Constraint("Tangent", 7, 2, 0, 1))
sketch10.addConstraint(Sketcher.Constraint("Equal", 1, 3))
sketch10.addConstraint(Sketcher.Constraint("Equal", 3, 5))
sketch10.addConstraint(Sketcher.Constraint("Equal", 5, 7))
sketch10.addConstraint(Sketcher.Constraint("Perpendicular", 0, 2))
sketch10.addConstraint(Sketcher.Constraint("Perpendicular", 2, 4))
sketch10.addConstraint(Sketcher.Constraint("Perpendicular", 4, 6))
sketch10.addConstraint(Sketcher.Constraint("Horizontal", 1, 3, 5, 3))
sketch10.addConstraint(Sketcher.Constraint("Horizontal", 2, 2, 3, 2))
sketch10.addConstraint(Sketcher.Constraint("Radius", 1, 1.5))
sketch10.addConstraint(Sketcher.Constraint("Distance", 0, 20.0))
sketch10.addConstraint(Sketcher.Constraint("DistanceX", 3, 3, -1, 1, 7.12))
sketch10.addConstraint(Sketcher.Constraint("DistanceY", -1, 1, 3, 3, 26.315592))
pad3 = body.newObject("PartDesign::Pad", "Pad002")
pad3.Profile = sketch10
pad3.Length = 2

doc.recompute()
